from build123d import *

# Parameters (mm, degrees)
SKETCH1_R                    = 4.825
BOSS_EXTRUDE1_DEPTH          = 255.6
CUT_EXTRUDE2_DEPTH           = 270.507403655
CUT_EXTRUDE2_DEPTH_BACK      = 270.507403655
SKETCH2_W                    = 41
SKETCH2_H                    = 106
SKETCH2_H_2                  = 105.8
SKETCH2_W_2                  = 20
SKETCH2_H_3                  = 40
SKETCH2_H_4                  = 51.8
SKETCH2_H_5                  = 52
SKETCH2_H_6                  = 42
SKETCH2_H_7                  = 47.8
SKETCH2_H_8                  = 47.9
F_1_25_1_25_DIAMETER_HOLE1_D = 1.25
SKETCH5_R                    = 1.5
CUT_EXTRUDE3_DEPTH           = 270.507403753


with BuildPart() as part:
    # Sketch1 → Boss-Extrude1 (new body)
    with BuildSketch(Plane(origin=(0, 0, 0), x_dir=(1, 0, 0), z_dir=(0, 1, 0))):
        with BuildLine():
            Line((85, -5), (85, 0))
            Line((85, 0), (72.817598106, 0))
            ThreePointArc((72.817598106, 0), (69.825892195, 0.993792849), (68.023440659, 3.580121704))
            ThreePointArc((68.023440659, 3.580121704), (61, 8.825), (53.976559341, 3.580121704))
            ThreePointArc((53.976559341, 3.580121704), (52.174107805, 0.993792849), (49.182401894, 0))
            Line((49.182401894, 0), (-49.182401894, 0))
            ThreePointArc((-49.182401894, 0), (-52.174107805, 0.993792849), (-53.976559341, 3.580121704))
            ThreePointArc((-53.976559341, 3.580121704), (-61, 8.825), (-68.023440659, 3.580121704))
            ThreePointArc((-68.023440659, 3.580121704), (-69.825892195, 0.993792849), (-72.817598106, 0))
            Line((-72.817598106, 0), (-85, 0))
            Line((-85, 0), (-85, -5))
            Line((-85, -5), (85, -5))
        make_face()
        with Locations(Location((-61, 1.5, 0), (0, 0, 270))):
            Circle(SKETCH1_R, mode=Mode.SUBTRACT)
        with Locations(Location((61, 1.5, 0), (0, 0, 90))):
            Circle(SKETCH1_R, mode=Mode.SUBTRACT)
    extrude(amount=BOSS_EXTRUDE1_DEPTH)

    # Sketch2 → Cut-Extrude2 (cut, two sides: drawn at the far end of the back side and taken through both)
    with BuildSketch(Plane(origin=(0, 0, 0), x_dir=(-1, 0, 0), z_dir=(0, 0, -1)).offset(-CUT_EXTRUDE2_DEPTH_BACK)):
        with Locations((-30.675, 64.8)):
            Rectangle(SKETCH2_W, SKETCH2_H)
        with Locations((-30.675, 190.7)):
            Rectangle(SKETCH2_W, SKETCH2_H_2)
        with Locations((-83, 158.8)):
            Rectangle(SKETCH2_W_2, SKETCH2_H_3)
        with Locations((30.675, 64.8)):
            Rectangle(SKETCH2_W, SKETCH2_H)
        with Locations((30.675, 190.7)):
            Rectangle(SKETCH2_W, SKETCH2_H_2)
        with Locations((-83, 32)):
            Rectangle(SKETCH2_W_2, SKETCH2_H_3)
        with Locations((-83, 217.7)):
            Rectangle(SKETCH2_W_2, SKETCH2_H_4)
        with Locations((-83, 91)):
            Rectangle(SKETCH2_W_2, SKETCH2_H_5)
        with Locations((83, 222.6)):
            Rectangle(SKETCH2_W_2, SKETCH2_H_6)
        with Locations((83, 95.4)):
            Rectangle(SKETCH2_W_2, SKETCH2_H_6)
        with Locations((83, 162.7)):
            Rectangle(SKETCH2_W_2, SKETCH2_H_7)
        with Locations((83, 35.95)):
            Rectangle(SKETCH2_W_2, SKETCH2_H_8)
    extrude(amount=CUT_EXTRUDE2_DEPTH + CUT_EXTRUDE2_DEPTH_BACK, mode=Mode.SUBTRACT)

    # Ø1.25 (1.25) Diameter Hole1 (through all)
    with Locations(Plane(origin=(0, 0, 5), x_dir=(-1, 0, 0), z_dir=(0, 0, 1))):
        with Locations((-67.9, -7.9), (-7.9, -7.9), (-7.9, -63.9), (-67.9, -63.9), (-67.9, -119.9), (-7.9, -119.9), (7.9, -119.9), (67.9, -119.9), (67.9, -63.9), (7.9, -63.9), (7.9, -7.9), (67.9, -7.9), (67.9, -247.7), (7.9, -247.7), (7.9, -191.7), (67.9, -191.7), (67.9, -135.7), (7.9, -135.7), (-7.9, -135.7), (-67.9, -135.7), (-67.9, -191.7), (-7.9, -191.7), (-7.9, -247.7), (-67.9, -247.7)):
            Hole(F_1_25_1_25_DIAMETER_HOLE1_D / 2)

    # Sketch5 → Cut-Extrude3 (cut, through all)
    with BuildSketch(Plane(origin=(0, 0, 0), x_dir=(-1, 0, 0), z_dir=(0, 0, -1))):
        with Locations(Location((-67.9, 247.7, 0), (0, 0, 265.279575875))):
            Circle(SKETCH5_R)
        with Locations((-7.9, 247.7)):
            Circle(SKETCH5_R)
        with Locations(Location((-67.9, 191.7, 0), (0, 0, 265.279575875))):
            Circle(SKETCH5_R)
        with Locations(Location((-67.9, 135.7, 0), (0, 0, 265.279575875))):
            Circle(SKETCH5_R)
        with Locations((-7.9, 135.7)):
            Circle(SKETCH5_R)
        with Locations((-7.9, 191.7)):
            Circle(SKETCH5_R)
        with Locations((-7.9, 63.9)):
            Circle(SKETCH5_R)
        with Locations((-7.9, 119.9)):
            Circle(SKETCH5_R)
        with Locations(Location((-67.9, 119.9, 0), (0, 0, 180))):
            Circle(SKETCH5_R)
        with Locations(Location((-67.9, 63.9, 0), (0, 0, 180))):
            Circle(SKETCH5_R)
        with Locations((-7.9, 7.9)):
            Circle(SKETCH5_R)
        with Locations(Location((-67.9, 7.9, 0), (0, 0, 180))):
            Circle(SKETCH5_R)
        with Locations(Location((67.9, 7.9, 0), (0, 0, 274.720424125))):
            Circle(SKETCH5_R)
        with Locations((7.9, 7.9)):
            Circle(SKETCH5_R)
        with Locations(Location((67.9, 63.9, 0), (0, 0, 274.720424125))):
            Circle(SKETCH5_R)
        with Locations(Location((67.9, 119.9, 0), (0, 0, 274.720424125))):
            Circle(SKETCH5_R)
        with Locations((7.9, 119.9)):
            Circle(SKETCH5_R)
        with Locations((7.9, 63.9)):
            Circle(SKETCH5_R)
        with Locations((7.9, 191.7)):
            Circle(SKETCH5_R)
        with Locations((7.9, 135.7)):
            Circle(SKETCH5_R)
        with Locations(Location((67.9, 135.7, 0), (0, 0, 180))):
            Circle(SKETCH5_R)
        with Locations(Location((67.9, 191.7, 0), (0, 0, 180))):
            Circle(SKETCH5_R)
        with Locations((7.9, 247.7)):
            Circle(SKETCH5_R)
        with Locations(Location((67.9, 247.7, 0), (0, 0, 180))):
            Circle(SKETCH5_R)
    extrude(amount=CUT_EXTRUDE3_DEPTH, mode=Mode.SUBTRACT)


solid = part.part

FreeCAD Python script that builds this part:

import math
import FreeCAD as App
import Part
import Sketcher
Q = App.Units.Quantity

doc = App.newDocument("Part")
body = doc.addObject("PartDesign::Body", "Body")

sketch1 = body.newObject("Sketcher::SketchObject", "Sketch")
sketch1.AttachmentSupport = (doc.getObject("XZ_Plane"), [""])
sketch1.MapMode = "FlatFace"
sketch1.addGeometry([
    Part.LineSegment(App.Vector(85, 5, 0), App.Vector(85, 0, 0)),
    Part.LineSegment(App.Vector(85, 0, 0), App.Vector(72.817598, 0, 0)),
    Part.ArcOfCircle(Part.Circle(App.Vector(72.817598, -5, 0), App.Vector(0, 0, 1), 5), math.radians(90), math.radians(163.502371)),
    Part.ArcOfCircle(Part.Circle(App.Vector(61, -1.5, 0), App.Vector(0, 0, 1), 7.325), math.radians(-163.502371), math.radians(-16.497629)),
    Part.ArcOfCircle(Part.Circle(App.Vector(49.182402, -5, 0), App.Vector(0, 0, 1), 5), math.radians(16.497629), math.radians(90)),
    Part.LineSegment(App.Vector(49.182402, 0, 0), App.Vector(-49.182402, 0, 0)),
    Part.ArcOfCircle(Part.Circle(App.Vector(-49.182402, -5, 0), App.Vector(0, 0, 1), 5), math.radians(90), math.radians(163.502371)),
    Part.ArcOfCircle(Part.Circle(App.Vector(-61, -1.5, 0), App.Vector(0, 0, 1), 7.325), math.radians(-163.502371), math.radians(-16.497629)),
    Part.ArcOfCircle(Part.Circle(App.Vector(-72.817598, -5, 0), App.Vector(0, 0, 1), 5), math.radians(16.497629), math.radians(90)),
    Part.LineSegment(App.Vector(-72.817598, 0, 0), App.Vector(-85, 0, 0)),
    Part.LineSegment(App.Vector(-85, 0, 0), App.Vector(-85, 5, 0)),
    Part.LineSegment(App.Vector(-85, 5, 0), App.Vector(85, 5, 0)),
    Part.Circle(App.Vector(-61, -1.5, 0), App.Vector(0, 0, 1), 4.825),
    Part.Circle(App.Vector(61, -1.5, 0), App.Vector(0, 0, 1), 4.825),
], False)
sketch1.addConstraint([
    Sketcher.Constraint("Coincident", 0, 2, 1, 1),
    Sketcher.Constraint("Tangent", 1, 2, 2, 1),
    Sketcher.Constraint("Tangent", 2, 2, 3, 2),
    Sketcher.Constraint("Tangent", 3, 1, 4, 1),
    Sketcher.Constraint("Tangent", 4, 2, 5, 1),
    Sketcher.Constraint("Tangent", 5, 2, 6, 1),
    Sketcher.Constraint("Tangent", 6, 2, 7, 2),
    Sketcher.Constraint("Tangent", 7, 1, 8, 1),
    Sketcher.Constraint("Tangent", 8, 2, 9, 1),
    Sketcher.Constraint("Coincident", 9, 2, 10, 1),
    Sketcher.Constraint("Coincident", 10, 2, 11, 1),
    Sketcher.Constraint("Coincident", 11, 2, 0, 1),
    Sketcher.Constraint("Vertical", 0),
    Sketcher.Constraint("Horizontal", 1),
    Sketcher.Constraint("Horizontal", 5),
    Sketcher.Constraint("Horizontal", 9),
    Sketcher.Constraint("Vertical", 10),
    Sketcher.Constraint("Horizontal", 11),
    Sketcher.Constraint("Coincident", 12, 3, 7, 3),
    Sketcher.Constraint("Coincident", 13, 3, 3, 3),
    Sketcher.Constraint("Equal", 2, 4),
    Sketcher.Constraint("Equal", 4, 6),
    Sketcher.Constraint("Equal", 3, 7),
    Sketcher.Constraint("Equal", 6, 8),
    Sketcher.Constraint("Equal", 12, 13),
    Sketcher.Constraint("Symmetric", 4, 2, 5, 2, -1, 1),
    Sketcher.Constraint("Symmetric", 1, 2, 8, 2, -1, 1),
    Sketcher.Constraint("Symmetric", 0, 2, 9, 2, -2),
    Sketcher.Constraint("Radius", 2, Q("5 mm")),
    Sketcher.Constraint("Diameter", 12, Q("9.65 mm")),
    Sketcher.Constraint("DistanceX", 11, 1, 11, 2, Q("170 mm")),
    Sketcher.Constraint("DistanceY", 0, 2, 0, 1, Q("5 mm")),
    Sketcher.Constraint("DistanceX", -1, 1, 3, 3, Q("61 mm")),
    Sketcher.Constraint("Radius", 3, Q("7.325 mm")),
    Sketcher.Constraint("DistanceY", 3, 3, -1, 1, Q("1.5 mm")),
])
pad1 = body.newObject("PartDesign::Pad", "Pad")
pad1.Profile = sketch1
pad1.Length = 255.6
pad1.Reversed = True

sketch2 = body.newObject("Sketcher::SketchObject", "Sketch001")
sketch2.AttachmentSupport = (doc.getObject("XY_Plane"), [""])
sketch2.MapMode = "FlatFace"
sketch2.addGeometry([
    Part.LineSegment(App.Vector(51.175, 117.8, 0), App.Vector(51.175, 11.8, 0)),
    Part.LineSegment(App.Vector(51.175, 11.8, 0), App.Vector(10.175, 11.8, 0)),
    Part.LineSegment(App.Vector(10.175, 11.8, 0), App.Vector(10.175, 117.8, 0)),
    Part.LineSegment(App.Vector(10.175, 117.8, 0), App.Vector(51.175, 117.8, 0)),
    Part.LineSegment(App.Vector(51.175, 243.6, 0), App.Vector(51.175, 137.8, 0)),
    Part.LineSegment(App.Vector(51.175, 137.8, 0), App.Vector(10.175, 137.8, 0)),
    Part.LineSegment(App.Vector(10.175, 137.8, 0), App.Vector(10.175, 243.6, 0)),
    Part.LineSegment(App.Vector(10.175, 243.6, 0), App.Vector(51.175, 243.6, 0)),
    Part.LineSegment(App.Vector(93, 178.8, 0), App.Vector(93, 138.8, 0)),
    Part.LineSegment(App.Vector(93, 138.8, 0), App.Vector(73, 138.8, 0)),
    Part.LineSegment(App.Vector(73, 138.8, 0), App.Vector(73, 178.8, 0)),
    Part.LineSegment(App.Vector(73, 178.8, 0), App.Vector(93, 178.8, 0)),
    Part.LineSegment(App.Vector(-10.175, 117.8, 0), App.Vector(-10.175, 11.8, 0)),
    Part.LineSegment(App.Vector(-10.175, 11.8, 0), App.Vector(-51.175, 11.8, 0)),
    Part.LineSegment(App.Vector(-51.175, 11.8, 0), App.Vector(-51.175, 117.8, 0)),
    Part.LineSegment(App.Vector(-51.175, 117.8, 0), App.Vector(-10.175, 117.8, 0)),
    Part.LineSegment(App.Vector(-10.175, 243.6, 0), App.Vector(-10.175, 137.8, 0)),
    Part.LineSegment(App.Vector(-10.175, 137.8, 0), App.Vector(-51.175, 137.8, 0)),
    Part.LineSegment(App.Vector(-51.175, 137.8, 0), App.Vector(-51.175, 243.6, 0)),
    Part.LineSegment(App.Vector(-51.175, 243.6, 0), App.Vector(-10.175, 243.6, 0)),
    Part.LineSegment(App.Vector(93, 52, 0), App.Vector(93, 12, 0)),
    Part.LineSegment(App.Vector(93, 12, 0), App.Vector(73, 12, 0)),
    Part.LineSegment(App.Vector(73, 12, 0), App.Vector(73, 52, 0)),
    Part.LineSegment(App.Vector(73, 52, 0), App.Vector(93, 52, 0)),
    Part.LineSegment(App.Vector(93, 243.6, 0), App.Vector(93, 191.8, 0)),
    Part.LineSegment(App.Vector(93, 191.8, 0), App.Vector(73, 191.8, 0)),
    Part.LineSegment(App.Vector(73, 191.8, 0), App.Vector(73, 243.6, 0)),
    Part.LineSegment(App.Vector(73, 243.6, 0), App.Vector(93, 243.6, 0)),
    Part.LineSegment(App.Vector(93, 117, 0), App.Vector(93, 65, 0)),
    Part.LineSegment(App.Vector(93, 65, 0), App.Vector(73, 65, 0)),
    Part.LineSegment(App.Vector(73, 65, 0), App.Vector(73, 117, 0)),
    Part.LineSegment(App.Vector(73, 117, 0), App.Vector(93, 117, 0)),
    Part.LineSegment(App.Vector(-73, 243.6, 0), App.Vector(-73, 201.6, 0)),
    Part.LineSegment(App.Vector(-73, 201.6, 0), App.Vector(-93, 201.6, 0)),
    Part.LineSegment(App.Vector(-93, 201.6, 0), App.Vector(-93, 243.6, 0)),
    Part.LineSegment(App.Vector(-93, 243.6, 0), App.Vector(-73, 243.6, 0)),
    Part.LineSegment(App.Vector(-73, 116.4, 0), App.Vector(-73, 74.4, 0)),
    Part.LineSegment(App.Vector(-73, 74.4, 0), App.Vector(-93, 74.4, 0)),
    Part.LineSegment(App.Vector(-93, 74.4, 0), App.Vector(-93, 116.4, 0)),
    Part.LineSegment(App.Vector(-93, 116.4, 0), App.Vector(-73, 116.4, 0)),
    Part.LineSegment(App.Vector(-73, 186.6, 0), App.Vector(-73, 138.8, 0)),
    Part.LineSegment(App.Vector(-73, 138.8, 0), App.Vector(-93, 138.8, 0)),
    Part.LineSegment(App.Vector(-93, 138.8, 0), App.Vector(-93, 186.6, 0)),
    Part.LineSegment(App.Vector(-93, 186.6, 0), App.Vector(-73, 186.6, 0)),
    Part.LineSegment(App.Vector(-73, 59.9, 0), App.Vector(-73, 12, 0)),
    Part.LineSegment(App.Vector(-73, 12, 0), App.Vector(-93, 12, 0)),
    Part.LineSegment(App.Vector(-93, 12, 0), App.Vector(-93, 59.9, 0)),
    Part.LineSegment(App.Vector(-93, 59.9, 0), App.Vector(-73, 59.9, 0)),
], False)
sketch2.addConstraint([
    Sketcher.Constraint("Coincident", 0, 2, 1, 1),
    Sketcher.Constraint("Coincident", 1, 2, 2, 1),
    Sketcher.Constraint("Coincident", 2, 2, 3, 1),
    Sketcher.Constraint("Coincident", 3, 2, 0, 1),
    Sketcher.Constraint("Coincident", 4, 2, 5, 1),
    Sketcher.Constraint("Coincident", 5, 2, 6, 1),
    Sketcher.Constraint("Coincident", 6, 2, 7, 1),
    Sketcher.Constraint("Coincident", 7, 2, 4, 1),
    Sketcher.Constraint("Coincident", 8, 2, 9, 1),
    Sketcher.Constraint("Coincident", 9, 2, 10, 1),
    Sketcher.Constraint("Coincident", 10, 2, 11, 1),
    Sketcher.Constraint("Coincident", 11, 2, 8, 1),
    Sketcher.Constraint("Coincident", 12, 2, 13, 1),
    Sketcher.Constraint("Coincident", 13, 2, 14, 1),
    Sketcher.Constraint("Coincident", 14, 2, 15, 1),
    Sketcher.Constraint("Coincident", 15, 2, 12, 1),
    Sketcher.Constraint("Coincident", 16, 2, 17, 1),
    Sketcher.Constraint("Coincident", 17, 2, 18, 1),
    Sketcher.Constraint("Coincident", 18, 2, 19, 1),
    Sketcher.Constraint("Coincident", 19, 2, 16, 1),
    Sketcher.Constraint("Coincident", 20, 2, 21, 1),
    Sketcher.Constraint("Coincident", 21, 2, 22, 1),
    Sketcher.Constraint("Coincident", 22, 2, 23, 1),
    Sketcher.Constraint("Coincident", 23, 2, 20, 1),
    Sketcher.Constraint("Coincident", 24, 2, 25, 1),
    Sketcher.Constraint("Coincident", 25, 2, 26, 1),
    Sketcher.Constraint("Coincident", 26, 2, 27, 1),
    Sketcher.Constraint("Coincident", 27, 2, 24, 1),
    Sketcher.Constraint("Coincident", 28, 2, 29, 1),
    Sketcher.Constraint("Coincident", 29, 2, 30, 1),
    Sketcher.Constraint("Coincident", 30, 2, 31, 1),
    Sketcher.Constraint("Coincident", 31, 2, 28, 1),
    Sketcher.Constraint("Coincident", 32, 2, 33, 1),
    Sketcher.Constraint("Coincident", 33, 2, 34, 1),
    Sketcher.Constraint("Coincident", 34, 2, 35, 1),
    Sketcher.Constraint("Coincident", 35, 2, 32, 1),
    Sketcher.Constraint("Coincident", 36, 2, 37, 1),
    Sketcher.Constraint("Coincident", 37, 2, 38, 1),
    Sketcher.Constraint("Coincident", 38, 2, 39, 1),
    Sketcher.Constraint("Coincident", 39, 2, 36, 1),
    Sketcher.Constraint("Coincident", 40, 2, 41, 1),
    Sketcher.Constraint("Coincident", 41, 2, 42, 1),
    Sketcher.Constraint("Coincident", 42, 2, 43, 1),
    Sketcher.Constraint("Coincident", 43, 2, 40, 1),
    Sketcher.Constraint("Coincident", 44, 2, 45, 1),
    Sketcher.Constraint("Coincident", 45, 2, 46, 1),
    Sketcher.Constraint("Coincident", 46, 2, 47, 1),
    Sketcher.Constraint("Coincident", 47, 2, 44, 1),
    Sketcher.Constraint("Vertical", 0),
    Sketcher.Constraint("Horizontal", 1),
    Sketcher.Constraint("Vertical", 2),
    Sketcher.Constraint("Horizontal", 3),
    Sketcher.Constraint("Vertical", 4),
    Sketcher.Constraint("Horizontal", 5),
    Sketcher.Constraint("Vertical", 6),
    Sketcher.Constraint("Horizontal", 7),
    Sketcher.Constraint("Vertical", 8),
    Sketcher.Constraint("Horizontal", 9),
    Sketcher.Constraint("Vertical", 10),
    Sketcher.Constraint("Horizontal", 11),
    Sketcher.Constraint("Vertical", 12),
    Sketcher.Constraint("Horizontal", 13),
    Sketcher.Constraint("Vertical", 14),
    Sketcher.Constraint("Horizontal", 15),
    Sketcher.Constraint("Vertical", 16),
    Sketcher.Constraint("Horizontal", 17),
    Sketcher.Constraint("Vertical", 18),
    Sketcher.Constraint("Horizontal", 19),
    Sketcher.Constraint("Vertical", 20),
    Sketcher.Constraint("Horizontal", 21),
    Sketcher.Constraint("Vertical", 22),
    Sketcher.Constraint("Horizontal", 23),
    Sketcher.Constraint("Vertical", 24),
    Sketcher.Constraint("Horizontal", 25),
    Sketcher.Constraint("Vertical", 26),
    Sketcher.Constraint("Horizontal", 27),
    Sketcher.Constraint("Vertical", 28),
    Sketcher.Constraint("Horizontal", 29),
    Sketcher.Constraint("Vertical", 30),
    Sketcher.Constraint("Horizontal", 31),
    Sketcher.Constraint("Vertical", 32),
    Sketcher.Constraint("Horizontal", 33),
    Sketcher.Constraint("Vertical", 34),
    Sketcher.Constraint("Horizontal", 35),
    Sketcher.Constraint("Vertical", 36),
    Sketcher.Constraint("Horizontal", 37),
    Sketcher.Constraint("Vertical", 38),
    Sketcher.Constraint("Horizontal", 39),
    Sketcher.Constraint("Vertical", 40),
    Sketcher.Constraint("Horizontal", 41),
    Sketcher.Constraint("Vertical", 42),
    Sketcher.Constraint("Horizontal", 43),
    Sketcher.Constraint("Vertical", 44),
    Sketcher.Constraint("Horizontal", 45),
    Sketcher.Constraint("Vertical", 46),
    Sketcher.Constraint("Horizontal", 47),
    Sketcher.Constraint("Symmetric", 1, 2, 12, 2, -2),
    Sketcher.Constraint("Symmetric", 3, 2, 14, 2, -2),
    Sketcher.Constraint("Symmetric", 5, 2, 16, 2, -2),
    Sketcher.Constraint("Symmetric", 7, 2, 18, 2, -2),
    Sketcher.Constraint("Symmetric", 27, 2, 34, 2, -2),
    Sketcher.Constraint("Symmetric", 9, 2, 40, 2, -2),
    Sketcher.Constraint("Symmetric", 21, 2, 44, 2, -2),
    Sketcher.Constraint("Horizontal", 19, 2, 26, 2),
    Sketcher.Constraint("Vertical", 3, 2, 4, 2),
    Sketcher.Constraint("Vertical", 2, 2, 5, 2),
    Sketcher.Constraint("Vertical", 11, 2, 20, 2),
    Sketcher.Constraint("Vertical", 10, 2, 21, 2),
    Sketcher.Constraint("Vertical", 23, 2, 24, 2),
    Sketcher.Constraint("Vertical", 22, 2, 25, 2),
    Sketcher.Constraint("Vertical", 27, 2, 28, 2),
    Sketcher.Constraint("Vertical", 26, 2, 29, 2),
    Sketcher.Constraint("Vertical", 35, 2, 36, 2),
    Sketcher.Constraint("Vertical", 34, 2, 37, 2),
    Sketcher.Constraint("Vertical", 39, 2, 40, 2),
    Sketcher.Constraint("Vertical", 38, 2, 41, 2),
    Sketcher.Constraint("Vertical", 42, 2, 45, 2),
    Sketcher.Constraint("Equal", 10, 20),
    Sketcher.Constraint("Equal", 34, 36),
    Sketcher.Constraint("DistanceX", 1, 2, 1, 1, Q("41 mm")),
    Sketcher.Constraint("DistanceX", 9, 2, 9, 1, Q("20 mm")),
    Sketcher.Constraint("DistanceY", 0, 2, 0, 1, Q("106 mm")),
    Sketcher.Constraint("DistanceY", 8, 2, 8, 1, Q("40 mm")),
    Sketcher.Constraint("DistanceY", 28, 2, 28, 1, Q("52 mm")),
    Sketcher.Constraint("DistanceY", 32, 2, 32, 1, Q("42 mm")),
    Sketcher.Constraint("DistanceY", 4, 2, 4, 1, Q("105.8 mm")),
    Sketcher.Constraint("DistanceY", 24, 2, 24, 1, Q("51.8 mm")),
    Sketcher.Constraint("DistanceY", 40, 2, 40, 1, Q("47.8 mm")),
    Sketcher.Constraint("DistanceY", 44, 2, 44, 1, Q("47.9 mm")),
    Sketcher.Constraint("DistanceX", -1, 1, 8, 2, Q("93 mm")),
    Sketcher.Constraint("DistanceY", -1, 1, 20, 2, Q("12 mm")),
    Sketcher.Constraint("DistanceY", -1, 1, 28, 2, Q("65 mm")),
    Sketcher.Constraint("DistanceY", 3, 2, 4, 2, Q("20 mm")),
    Sketcher.Constraint("DistanceY", 4, 2, 8, 2, Q("1 mm")),
    Sketcher.Constraint("DistanceY", -1, 1, 0, 2, Q("11.8 mm")),
    Sketcher.Constraint("DistanceY", -1, 1, 36, 2, Q("74.4 mm")),
    Sketcher.Constraint("DistanceX", 12, 2, 1, 2, Q("20.35 mm")),
])
pocket1 = body.newObject("PartDesign::Pocket", "Pocket")
pocket1.Profile = sketch2
pocket1.Type = "ThroughAll"
pocket1.Midplane = True

sketch3 = body.newObject("Sketcher::SketchObject", "Sketch002")
sketch3.AttachmentSupport = (doc.getObject("XY_Plane"), [""])
sketch3.MapMode = "FlatFace"
sketch3.AttachmentOffset = App.Placement(App.Vector(0, 0, 5), App.Rotation())
sketch3.addGeometry([
    Part.Circle(App.Vector(67.9, 7.9, 0), App.Vector(0, 0, 1), 0.625),
    Part.Circle(App.Vector(7.9, 7.9, 0), App.Vector(0, 0, 1), 0.625),
    Part.Circle(App.Vector(7.9, 63.9, 0), App.Vector(0, 0, 1), 0.625),
    Part.Circle(App.Vector(67.9, 63.9, 0), App.Vector(0, 0, 1), 0.625),
    Part.Circle(App.Vector(67.9, 119.9, 0), App.Vector(0, 0, 1), 0.625),
    Part.Circle(App.Vector(7.9, 119.9, 0), App.Vector(0, 0, 1), 0.625),
    Part.Circle(App.Vector(-7.9, 119.9, 0), App.Vector(0, 0, 1), 0.625),
    Part.Circle(App.Vector(-67.9, 119.9, 0), App.Vector(0, 0, 1), 0.625),
    Part.Circle(App.Vector(-67.9, 63.9, 0), App.Vector(0, 0, 1), 0.625),
    Part.Circle(App.Vector(-7.9, 63.9, 0), App.Vector(0, 0, 1), 0.625),
    Part.Circle(App.Vector(-7.9, 7.9, 0), App.Vector(0, 0, 1), 0.625),
    Part.Circle(App.Vector(-67.9, 7.9, 0), App.Vector(0, 0, 1), 0.625),
    Part.Circle(App.Vector(-67.9, 247.7, 0), App.Vector(0, 0, 1), 0.625),
    Part.Circle(App.Vector(-7.9, 247.7, 0), App.Vector(0, 0, 1), 0.625),
    Part.Circle(App.Vector(-7.9, 191.7, 0), App.Vector(0, 0, 1), 0.625),
    Part.Circle(App.Vector(-67.9, 191.7, 0), App.Vector(0, 0, 1), 0.625),
    Part.Circle(App.Vector(-67.9, 135.7, 0), App.Vector(0, 0, 1), 0.625),
    Part.Circle(App.Vector(-7.9, 135.7, 0), App.Vector(0, 0, 1), 0.625),
    Part.Circle(App.Vector(7.9, 135.7, 0), App.Vector(0, 0, 1), 0.625),
    Part.Circle(App.Vector(67.9, 135.7, 0), App.Vector(0, 0, 1), 0.625),
    Part.Circle(App.Vector(67.9, 191.7, 0), App.Vector(0, 0, 1), 0.625),
    Part.Circle(App.Vector(7.9, 191.7, 0), App.Vector(0, 0, 1), 0.625),
    Part.Circle(App.Vector(7.9, 247.7, 0), App.Vector(0, 0, 1), 0.625),
    Part.Circle(App.Vector(67.9, 247.7, 0), App.Vector(0, 0, 1), 0.625),
], False)
sketch3.addConstraint([
    Sketcher.Constraint("Equal", 0, 1),
    Sketcher.Constraint("Equal", 1, 2),
    Sketcher.Constraint("Equal", 2, 3),
    Sketcher.Constraint("Equal", 3, 4),
    Sketcher.Constraint("Equal", 4, 5),
    Sketcher.Constraint("Equal", 5, 6),
    Sketcher.Constraint("Equal", 6, 7),
    Sketcher.Constraint("Equal", 7, 8),
    Sketcher.Constraint("Equal", 8, 9),
    Sketcher.Constraint("Equal", 9, 10),
    Sketcher.Constraint("Equal", 10, 11),
    Sketcher.Constraint("Equal", 11, 12),
    Sketcher.Constraint("Equal", 12, 13),
    Sketcher.Constraint("Equal", 13, 14),
    Sketcher.Constraint("Equal", 14, 15),
    Sketcher.Constraint("Equal", 15, 16),
    Sketcher.Constraint("Equal", 16, 17),
    Sketcher.Constraint("Equal", 17, 18),
    Sketcher.Constraint("Equal", 18, 19),
    Sketcher.Constraint("Equal", 19, 20),
    Sketcher.Constraint("Equal", 20, 21),
    Sketcher.Constraint("Equal", 21, 22),
    Sketcher.Constraint("Equal", 22, 23),
    Sketcher.Constraint("Symmetric", 5, 3, 6, 3, -2),
    Sketcher.Constraint("Symmetric", 4, 3, 7, 3, -2),
    Sketcher.Constraint("Symmetric", 3, 3, 8, 3, -2),
    Sketcher.Constraint("Symmetric", 2, 3, 9, 3, -2),
    Sketcher.Constraint("Symmetric", 1, 3, 10, 3, -2),
    Sketcher.Constraint("Symmetric", 0, 3, 11, 3, -2),
    Sketcher.Constraint("Symmetric", 17, 3, 18, 3, -2),
    Sketcher.Constraint("Symmetric", 16, 3, 19, 3, -2),
    Sketcher.Constraint("Symmetric", 15, 3, 20, 3, -2),
    Sketcher.Constraint("Symmetric", 14, 3, 21, 3, -2),
    Sketcher.Constraint("Symmetric", 13, 3, 22, 3, -2),
    Sketcher.Constraint("Symmetric", 12, 3, 23, 3, -2),
    Sketcher.Constraint("Horizontal", 0, 3, 1, 3),
    Sketcher.Constraint("Horizontal", 2, 3, 3, 3),
    Sketcher.Constraint("Horizontal", 4, 3, 5, 3),
    Sketcher.Constraint("Horizontal", 12, 3, 13, 3),
    Sketcher.Constraint("Horizontal", 14, 3, 15, 3),
    Sketcher.Constraint("Horizontal", 16, 3, 17, 3),
    Sketcher.Constraint("Vertical", 1, 3, 2, 3),
    Sketcher.Constraint("Vertical", 0, 3, 3, 3),
    Sketcher.Constraint("Vertical", 3, 3, 4, 3),
    Sketcher.Constraint("Vertical", 2, 3, 5, 3),
    Sketcher.Constraint("Vertical", 11, 3, 12, 3),
    Sketcher.Constraint("Vertical", 10, 3, 13, 3),
    Sketcher.Constraint("Vertical", 13, 3, 14, 3),
    Sketcher.Constraint("Vertical", 12, 3, 15, 3),
    Sketcher.Constraint("Vertical", 15, 3, 16, 3),
    Sketcher.Constraint("Vertical", 14, 3, 17, 3),
    Sketcher.Constraint("Diameter", 0, Q("1.25 mm")),
    Sketcher.Constraint("DistanceX", 1, 3, 0, 3, Q("60 mm")),
    Sketcher.Constraint("DistanceY", 1, 3, 2, 3, Q("56 mm")),
    Sketcher.Constraint("DistanceY", 3, 3, 4, 3, Q("56 mm")),
    Sketcher.Constraint("DistanceY", 14, 3, 13, 3, Q("56 mm")),
    Sketcher.Constraint("DistanceY", 16, 3, 15, 3, Q("56 mm")),
    Sketcher.Constraint("DistanceX", -1, 1, 0, 3, Q("67.9 mm")),
    Sketcher.Constraint("DistanceY", -1, 1, 0, 3, Q("7.9 mm")),
    Sketcher.Constraint("DistanceY", -1, 1, 12, 3, Q("247.7 mm")),
])
doc.recompute()
hole = body.newObject("PartDesign::Hole", "Hole")
hole.Profile = sketch3
hole.ThreadType = "None"
hole.Diameter = 1.25
hole.DepthType = "ThroughAll"

sketch4 = body.newObject("Sketcher::SketchObject", "Sketch003")
sketch4.AttachmentSupport = (doc.getObject("XY_Plane"), [""])
sketch4.MapMode = "FlatFace"
sketch4.addGeometry([
    Part.Circle(App.Vector(67.9, 247.7, 0), App.Vector(0, 0, 1), 1.5),
    Part.Circle(App.Vector(7.9, 247.7, 0), App.Vector(0, 0, 1), 1.5),
    Part.Circle(App.Vector(67.9, 191.7, 0), App.Vector(0, 0, 1), 1.5),
    Part.Circle(App.Vector(67.9, 135.7, 0), App.Vector(0, 0, 1), 1.5),
    Part.Circle(App.Vector(7.9, 135.7, 0), App.Vector(0, 0, 1), 1.5),
    Part.Circle(App.Vector(7.9, 191.7, 0), App.Vector(0, 0, 1), 1.5),
    Part.Circle(App.Vector(7.9, 63.9, 0), App.Vector(0, 0, 1), 1.5),
    Part.Circle(App.Vector(7.9, 119.9, 0), App.Vector(0, 0, 1), 1.5),
    Part.Circle(App.Vector(67.9, 119.9, 0), App.Vector(0, 0, 1), 1.5),
    Part.Circle(App.Vector(67.9, 63.9, 0), App.Vector(0, 0, 1), 1.5),
    Part.Circle(App.Vector(7.9, 7.9, 0), App.Vector(0, 0, 1), 1.5),
    Part.Circle(App.Vector(67.9, 7.9, 0), App.Vector(0, 0, 1), 1.5),
    Part.Circle(App.Vector(-67.9, 7.9, 0), App.Vector(0, 0, 1), 1.5),
    Part.Circle(App.Vector(-7.9, 7.9, 0), App.Vector(0, 0, 1), 1.5),
    Part.Circle(App.Vector(-67.9, 63.9, 0), App.Vector(0, 0, 1), 1.5),
    Part.Circle(App.Vector(-67.9, 119.9, 0), App.Vector(0, 0, 1), 1.5),
    Part.Circle(App.Vector(-7.9, 119.9, 0), App.Vector(0, 0, 1), 1.5),
    Part.Circle(App.Vector(-7.9, 63.9, 0), App.Vector(0, 0, 1), 1.5),
    Part.Circle(App.Vector(-7.9, 191.7, 0), App.Vector(0, 0, 1), 1.5),
    Part.Circle(App.Vector(-7.9, 135.7, 0), App.Vector(0, 0, 1), 1.5),
    Part.Circle(App.Vector(-67.9, 135.7, 0), App.Vector(0, 0, 1), 1.5),
    Part.Circle(App.Vector(-67.9, 191.7, 0), App.Vector(0, 0, 1), 1.5),
    Part.Circle(App.Vector(-7.9, 247.7, 0), App.Vector(0, 0, 1), 1.5),
    Part.Circle(App.Vector(-67.9, 247.7, 0), App.Vector(0, 0, 1), 1.5),
], False)
sketch4.addConstraint([
    Sketcher.Constraint("Equal", 0, 1),
    Sketcher.Constraint("Equal", 1, 2),
    Sketcher.Constraint("Equal", 2, 3),
    Sketcher.Constraint("Equal", 3, 4),
    Sketcher.Constraint("Equal", 4, 5),
    Sketcher.Constraint("Equal", 5, 6),
    Sketcher.Constraint("Equal", 6, 7),
    Sketcher.Constraint("Equal", 7, 8),
    Sketcher.Constraint("Equal", 8, 9),
    Sketcher.Constraint("Equal", 9, 10),
    Sketcher.Constraint("Equal", 10, 11),
    Sketcher.Constraint("Equal", 11, 12),
    Sketcher.Constraint("Equal", 12, 13),
    Sketcher.Constraint("Equal", 13, 14),
    Sketcher.Constraint("Equal", 14, 15),
    Sketcher.Constraint("Equal", 15, 16),
    Sketcher.Constraint("Equal", 16, 17),
    Sketcher.Constraint("Equal", 17, 18),
    Sketcher.Constraint("Equal", 18, 19),
    Sketcher.Constraint("Equal", 19, 20),
    Sketcher.Constraint("Equal", 20, 21),
    Sketcher.Constraint("Equal", 21, 22),
    Sketcher.Constraint("Equal", 22, 23),
    Sketcher.Constraint("Symmetric", 11, 3, 12, 3, -2),
    Sketcher.Constraint("Symmetric", 10, 3, 13, 3, -2),
    Sketcher.Constraint("Symmetric", 9, 3, 14, 3, -2),
    Sketcher.Constraint("Symmetric", 8, 3, 15, 3, -2),
    Sketcher.Constraint("Symmetric", 7, 3, 16, 3, -2),
    Sketcher.Constraint("Symmetric", 6, 3, 17, 3, -2),
    Sketcher.Constraint("Symmetric", 5, 3, 18, 3, -2),
    Sketcher.Constraint("Symmetric", 4, 3, 19, 3, -2),
    Sketcher.Constraint("Symmetric", 3, 3, 20, 3, -2),
    Sketcher.Constraint("Symmetric", 2, 3, 21, 3, -2),
    Sketcher.Constraint("Symmetric", 1, 3, 22, 3, -2),
    Sketcher.Constraint("Symmetric", 0, 3, 23, 3, -2),
    Sketcher.Constraint("Horizontal", 0, 3, 1, 3),
    Sketcher.Constraint("Horizontal", 3, 3, 4, 3),
    Sketcher.Constraint("Horizontal", 2, 3, 5, 3),
    Sketcher.Constraint("Horizontal", 7, 3, 8, 3),
    Sketcher.Constraint("Horizontal", 6, 3, 9, 3),
    Sketcher.Constraint("Horizontal", 10, 3, 11, 3),
    Sketcher.Constraint("Vertical", 0, 3, 2, 3),
    Sketcher.Constraint("Vertical", 2, 3, 3, 3),
    Sketcher.Constraint("Vertical", 1, 3, 4, 3),
    Sketcher.Constraint("Vertical", 4, 3, 5, 3),
    Sketcher.Constraint("Vertical", 5, 3, 6, 3),
    Sketcher.Constraint("Vertical", 6, 3, 7, 3),
    Sketcher.Constraint("Vertical", 3, 3, 8, 3),
    Sketcher.Constraint("Vertical", 8, 3, 9, 3),
    Sketcher.Constraint("Vertical", 7, 3, 10, 3),
    Sketcher.Constraint("Vertical", 9, 3, 11, 3),
    Sketcher.Constraint("Diameter", 0, Q("3 mm")),
    Sketcher.Constraint("DistanceX", 1, 3, 0, 3, Q("60 mm")),
    Sketcher.Constraint("DistanceY", 2, 3, 0, 3, Q("56 mm")),
    Sketcher.Constraint("DistanceY", 3, 3, 2, 3, Q("56 mm")),
    Sketcher.Constraint("DistanceY", 6, 3, 7, 3, Q("56 mm")),
    Sketcher.Constraint("DistanceY", 10, 3, 6, 3, Q("56 mm")),
    Sketcher.Constraint("DistanceX", -1, 1, 0, 3, Q("67.9 mm")),
    Sketcher.Constraint("DistanceY", -1, 1, 0, 3, Q("247.7 mm")),
    Sketcher.Constraint("DistanceY", -1, 1, 6, 3, Q("63.9 mm")),
])
pocket2 = body.newObject("PartDesign::Pocket", "Pocket001")
pocket2.Profile = sketch4
pocket2.Type = "ThroughAll"

doc.recompute()
